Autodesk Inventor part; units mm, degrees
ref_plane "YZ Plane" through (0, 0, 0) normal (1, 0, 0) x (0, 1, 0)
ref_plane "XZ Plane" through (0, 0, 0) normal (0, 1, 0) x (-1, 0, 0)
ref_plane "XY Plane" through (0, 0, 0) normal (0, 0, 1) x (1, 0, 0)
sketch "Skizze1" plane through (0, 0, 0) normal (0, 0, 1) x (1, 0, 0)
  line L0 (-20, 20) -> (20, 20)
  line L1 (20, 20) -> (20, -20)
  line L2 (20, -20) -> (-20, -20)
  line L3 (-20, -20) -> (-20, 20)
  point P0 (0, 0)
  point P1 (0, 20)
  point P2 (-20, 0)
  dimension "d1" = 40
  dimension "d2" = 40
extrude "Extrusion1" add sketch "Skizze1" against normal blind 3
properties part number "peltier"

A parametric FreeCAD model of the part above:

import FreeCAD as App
import Part
import Sketcher
from FreeCAD import Vector

doc = App.newDocument("Part")
body = doc.addObject("PartDesign::Body", "Body")

sketch1 = body.newObject("Sketcher::SketchObject", "Sketch")
sketch1.AttachmentSupport = (doc.getObject("XY_Plane"), [""])
sketch1.MapMode = "FlatFace"
sketch1.addGeometry([
    Part.LineSegment(Vector(20, 20, 0), Vector(-20, 20, 0)),
    Part.LineSegment(Vector(-20, 20, 0), Vector(-20, -20, 0)),
    Part.LineSegment(Vector(-20, -20, 0), Vector(20, -20, 0)),
    Part.LineSegment(Vector(20, -20, 0), Vector(20, 20, 0)),
], False)
sketch1.addConstraint([
    Sketcher.Constraint("Coincident", 0, 2, 1, 1),
    Sketcher.Constraint("Coincident", 1, 2, 2, 1),
    Sketcher.Constraint("Coincident", 2, 2, 3, 1),
    Sketcher.Constraint("Coincident", 3, 2, 0, 1),
    Sketcher.Constraint("Horizontal", 0),
    Sketcher.Constraint("Vertical", 1),
    Sketcher.Constraint("Horizontal", 2),
    Sketcher.Constraint("Vertical", 3),
    Sketcher.Constraint("Symmetric", 0, 2, 2, 2, -1, 1),
    Sketcher.Constraint("Equal", 2, 1),
    Sketcher.Constraint("DistanceX", 0, 2, 0, 1, 40.0),
])
pad1 = body.newObject("PartDesign::Pad", "Pad")
pad1.Profile = sketch1
pad1.Length = 3
pad1.Reversed = True

doc.recompute()
